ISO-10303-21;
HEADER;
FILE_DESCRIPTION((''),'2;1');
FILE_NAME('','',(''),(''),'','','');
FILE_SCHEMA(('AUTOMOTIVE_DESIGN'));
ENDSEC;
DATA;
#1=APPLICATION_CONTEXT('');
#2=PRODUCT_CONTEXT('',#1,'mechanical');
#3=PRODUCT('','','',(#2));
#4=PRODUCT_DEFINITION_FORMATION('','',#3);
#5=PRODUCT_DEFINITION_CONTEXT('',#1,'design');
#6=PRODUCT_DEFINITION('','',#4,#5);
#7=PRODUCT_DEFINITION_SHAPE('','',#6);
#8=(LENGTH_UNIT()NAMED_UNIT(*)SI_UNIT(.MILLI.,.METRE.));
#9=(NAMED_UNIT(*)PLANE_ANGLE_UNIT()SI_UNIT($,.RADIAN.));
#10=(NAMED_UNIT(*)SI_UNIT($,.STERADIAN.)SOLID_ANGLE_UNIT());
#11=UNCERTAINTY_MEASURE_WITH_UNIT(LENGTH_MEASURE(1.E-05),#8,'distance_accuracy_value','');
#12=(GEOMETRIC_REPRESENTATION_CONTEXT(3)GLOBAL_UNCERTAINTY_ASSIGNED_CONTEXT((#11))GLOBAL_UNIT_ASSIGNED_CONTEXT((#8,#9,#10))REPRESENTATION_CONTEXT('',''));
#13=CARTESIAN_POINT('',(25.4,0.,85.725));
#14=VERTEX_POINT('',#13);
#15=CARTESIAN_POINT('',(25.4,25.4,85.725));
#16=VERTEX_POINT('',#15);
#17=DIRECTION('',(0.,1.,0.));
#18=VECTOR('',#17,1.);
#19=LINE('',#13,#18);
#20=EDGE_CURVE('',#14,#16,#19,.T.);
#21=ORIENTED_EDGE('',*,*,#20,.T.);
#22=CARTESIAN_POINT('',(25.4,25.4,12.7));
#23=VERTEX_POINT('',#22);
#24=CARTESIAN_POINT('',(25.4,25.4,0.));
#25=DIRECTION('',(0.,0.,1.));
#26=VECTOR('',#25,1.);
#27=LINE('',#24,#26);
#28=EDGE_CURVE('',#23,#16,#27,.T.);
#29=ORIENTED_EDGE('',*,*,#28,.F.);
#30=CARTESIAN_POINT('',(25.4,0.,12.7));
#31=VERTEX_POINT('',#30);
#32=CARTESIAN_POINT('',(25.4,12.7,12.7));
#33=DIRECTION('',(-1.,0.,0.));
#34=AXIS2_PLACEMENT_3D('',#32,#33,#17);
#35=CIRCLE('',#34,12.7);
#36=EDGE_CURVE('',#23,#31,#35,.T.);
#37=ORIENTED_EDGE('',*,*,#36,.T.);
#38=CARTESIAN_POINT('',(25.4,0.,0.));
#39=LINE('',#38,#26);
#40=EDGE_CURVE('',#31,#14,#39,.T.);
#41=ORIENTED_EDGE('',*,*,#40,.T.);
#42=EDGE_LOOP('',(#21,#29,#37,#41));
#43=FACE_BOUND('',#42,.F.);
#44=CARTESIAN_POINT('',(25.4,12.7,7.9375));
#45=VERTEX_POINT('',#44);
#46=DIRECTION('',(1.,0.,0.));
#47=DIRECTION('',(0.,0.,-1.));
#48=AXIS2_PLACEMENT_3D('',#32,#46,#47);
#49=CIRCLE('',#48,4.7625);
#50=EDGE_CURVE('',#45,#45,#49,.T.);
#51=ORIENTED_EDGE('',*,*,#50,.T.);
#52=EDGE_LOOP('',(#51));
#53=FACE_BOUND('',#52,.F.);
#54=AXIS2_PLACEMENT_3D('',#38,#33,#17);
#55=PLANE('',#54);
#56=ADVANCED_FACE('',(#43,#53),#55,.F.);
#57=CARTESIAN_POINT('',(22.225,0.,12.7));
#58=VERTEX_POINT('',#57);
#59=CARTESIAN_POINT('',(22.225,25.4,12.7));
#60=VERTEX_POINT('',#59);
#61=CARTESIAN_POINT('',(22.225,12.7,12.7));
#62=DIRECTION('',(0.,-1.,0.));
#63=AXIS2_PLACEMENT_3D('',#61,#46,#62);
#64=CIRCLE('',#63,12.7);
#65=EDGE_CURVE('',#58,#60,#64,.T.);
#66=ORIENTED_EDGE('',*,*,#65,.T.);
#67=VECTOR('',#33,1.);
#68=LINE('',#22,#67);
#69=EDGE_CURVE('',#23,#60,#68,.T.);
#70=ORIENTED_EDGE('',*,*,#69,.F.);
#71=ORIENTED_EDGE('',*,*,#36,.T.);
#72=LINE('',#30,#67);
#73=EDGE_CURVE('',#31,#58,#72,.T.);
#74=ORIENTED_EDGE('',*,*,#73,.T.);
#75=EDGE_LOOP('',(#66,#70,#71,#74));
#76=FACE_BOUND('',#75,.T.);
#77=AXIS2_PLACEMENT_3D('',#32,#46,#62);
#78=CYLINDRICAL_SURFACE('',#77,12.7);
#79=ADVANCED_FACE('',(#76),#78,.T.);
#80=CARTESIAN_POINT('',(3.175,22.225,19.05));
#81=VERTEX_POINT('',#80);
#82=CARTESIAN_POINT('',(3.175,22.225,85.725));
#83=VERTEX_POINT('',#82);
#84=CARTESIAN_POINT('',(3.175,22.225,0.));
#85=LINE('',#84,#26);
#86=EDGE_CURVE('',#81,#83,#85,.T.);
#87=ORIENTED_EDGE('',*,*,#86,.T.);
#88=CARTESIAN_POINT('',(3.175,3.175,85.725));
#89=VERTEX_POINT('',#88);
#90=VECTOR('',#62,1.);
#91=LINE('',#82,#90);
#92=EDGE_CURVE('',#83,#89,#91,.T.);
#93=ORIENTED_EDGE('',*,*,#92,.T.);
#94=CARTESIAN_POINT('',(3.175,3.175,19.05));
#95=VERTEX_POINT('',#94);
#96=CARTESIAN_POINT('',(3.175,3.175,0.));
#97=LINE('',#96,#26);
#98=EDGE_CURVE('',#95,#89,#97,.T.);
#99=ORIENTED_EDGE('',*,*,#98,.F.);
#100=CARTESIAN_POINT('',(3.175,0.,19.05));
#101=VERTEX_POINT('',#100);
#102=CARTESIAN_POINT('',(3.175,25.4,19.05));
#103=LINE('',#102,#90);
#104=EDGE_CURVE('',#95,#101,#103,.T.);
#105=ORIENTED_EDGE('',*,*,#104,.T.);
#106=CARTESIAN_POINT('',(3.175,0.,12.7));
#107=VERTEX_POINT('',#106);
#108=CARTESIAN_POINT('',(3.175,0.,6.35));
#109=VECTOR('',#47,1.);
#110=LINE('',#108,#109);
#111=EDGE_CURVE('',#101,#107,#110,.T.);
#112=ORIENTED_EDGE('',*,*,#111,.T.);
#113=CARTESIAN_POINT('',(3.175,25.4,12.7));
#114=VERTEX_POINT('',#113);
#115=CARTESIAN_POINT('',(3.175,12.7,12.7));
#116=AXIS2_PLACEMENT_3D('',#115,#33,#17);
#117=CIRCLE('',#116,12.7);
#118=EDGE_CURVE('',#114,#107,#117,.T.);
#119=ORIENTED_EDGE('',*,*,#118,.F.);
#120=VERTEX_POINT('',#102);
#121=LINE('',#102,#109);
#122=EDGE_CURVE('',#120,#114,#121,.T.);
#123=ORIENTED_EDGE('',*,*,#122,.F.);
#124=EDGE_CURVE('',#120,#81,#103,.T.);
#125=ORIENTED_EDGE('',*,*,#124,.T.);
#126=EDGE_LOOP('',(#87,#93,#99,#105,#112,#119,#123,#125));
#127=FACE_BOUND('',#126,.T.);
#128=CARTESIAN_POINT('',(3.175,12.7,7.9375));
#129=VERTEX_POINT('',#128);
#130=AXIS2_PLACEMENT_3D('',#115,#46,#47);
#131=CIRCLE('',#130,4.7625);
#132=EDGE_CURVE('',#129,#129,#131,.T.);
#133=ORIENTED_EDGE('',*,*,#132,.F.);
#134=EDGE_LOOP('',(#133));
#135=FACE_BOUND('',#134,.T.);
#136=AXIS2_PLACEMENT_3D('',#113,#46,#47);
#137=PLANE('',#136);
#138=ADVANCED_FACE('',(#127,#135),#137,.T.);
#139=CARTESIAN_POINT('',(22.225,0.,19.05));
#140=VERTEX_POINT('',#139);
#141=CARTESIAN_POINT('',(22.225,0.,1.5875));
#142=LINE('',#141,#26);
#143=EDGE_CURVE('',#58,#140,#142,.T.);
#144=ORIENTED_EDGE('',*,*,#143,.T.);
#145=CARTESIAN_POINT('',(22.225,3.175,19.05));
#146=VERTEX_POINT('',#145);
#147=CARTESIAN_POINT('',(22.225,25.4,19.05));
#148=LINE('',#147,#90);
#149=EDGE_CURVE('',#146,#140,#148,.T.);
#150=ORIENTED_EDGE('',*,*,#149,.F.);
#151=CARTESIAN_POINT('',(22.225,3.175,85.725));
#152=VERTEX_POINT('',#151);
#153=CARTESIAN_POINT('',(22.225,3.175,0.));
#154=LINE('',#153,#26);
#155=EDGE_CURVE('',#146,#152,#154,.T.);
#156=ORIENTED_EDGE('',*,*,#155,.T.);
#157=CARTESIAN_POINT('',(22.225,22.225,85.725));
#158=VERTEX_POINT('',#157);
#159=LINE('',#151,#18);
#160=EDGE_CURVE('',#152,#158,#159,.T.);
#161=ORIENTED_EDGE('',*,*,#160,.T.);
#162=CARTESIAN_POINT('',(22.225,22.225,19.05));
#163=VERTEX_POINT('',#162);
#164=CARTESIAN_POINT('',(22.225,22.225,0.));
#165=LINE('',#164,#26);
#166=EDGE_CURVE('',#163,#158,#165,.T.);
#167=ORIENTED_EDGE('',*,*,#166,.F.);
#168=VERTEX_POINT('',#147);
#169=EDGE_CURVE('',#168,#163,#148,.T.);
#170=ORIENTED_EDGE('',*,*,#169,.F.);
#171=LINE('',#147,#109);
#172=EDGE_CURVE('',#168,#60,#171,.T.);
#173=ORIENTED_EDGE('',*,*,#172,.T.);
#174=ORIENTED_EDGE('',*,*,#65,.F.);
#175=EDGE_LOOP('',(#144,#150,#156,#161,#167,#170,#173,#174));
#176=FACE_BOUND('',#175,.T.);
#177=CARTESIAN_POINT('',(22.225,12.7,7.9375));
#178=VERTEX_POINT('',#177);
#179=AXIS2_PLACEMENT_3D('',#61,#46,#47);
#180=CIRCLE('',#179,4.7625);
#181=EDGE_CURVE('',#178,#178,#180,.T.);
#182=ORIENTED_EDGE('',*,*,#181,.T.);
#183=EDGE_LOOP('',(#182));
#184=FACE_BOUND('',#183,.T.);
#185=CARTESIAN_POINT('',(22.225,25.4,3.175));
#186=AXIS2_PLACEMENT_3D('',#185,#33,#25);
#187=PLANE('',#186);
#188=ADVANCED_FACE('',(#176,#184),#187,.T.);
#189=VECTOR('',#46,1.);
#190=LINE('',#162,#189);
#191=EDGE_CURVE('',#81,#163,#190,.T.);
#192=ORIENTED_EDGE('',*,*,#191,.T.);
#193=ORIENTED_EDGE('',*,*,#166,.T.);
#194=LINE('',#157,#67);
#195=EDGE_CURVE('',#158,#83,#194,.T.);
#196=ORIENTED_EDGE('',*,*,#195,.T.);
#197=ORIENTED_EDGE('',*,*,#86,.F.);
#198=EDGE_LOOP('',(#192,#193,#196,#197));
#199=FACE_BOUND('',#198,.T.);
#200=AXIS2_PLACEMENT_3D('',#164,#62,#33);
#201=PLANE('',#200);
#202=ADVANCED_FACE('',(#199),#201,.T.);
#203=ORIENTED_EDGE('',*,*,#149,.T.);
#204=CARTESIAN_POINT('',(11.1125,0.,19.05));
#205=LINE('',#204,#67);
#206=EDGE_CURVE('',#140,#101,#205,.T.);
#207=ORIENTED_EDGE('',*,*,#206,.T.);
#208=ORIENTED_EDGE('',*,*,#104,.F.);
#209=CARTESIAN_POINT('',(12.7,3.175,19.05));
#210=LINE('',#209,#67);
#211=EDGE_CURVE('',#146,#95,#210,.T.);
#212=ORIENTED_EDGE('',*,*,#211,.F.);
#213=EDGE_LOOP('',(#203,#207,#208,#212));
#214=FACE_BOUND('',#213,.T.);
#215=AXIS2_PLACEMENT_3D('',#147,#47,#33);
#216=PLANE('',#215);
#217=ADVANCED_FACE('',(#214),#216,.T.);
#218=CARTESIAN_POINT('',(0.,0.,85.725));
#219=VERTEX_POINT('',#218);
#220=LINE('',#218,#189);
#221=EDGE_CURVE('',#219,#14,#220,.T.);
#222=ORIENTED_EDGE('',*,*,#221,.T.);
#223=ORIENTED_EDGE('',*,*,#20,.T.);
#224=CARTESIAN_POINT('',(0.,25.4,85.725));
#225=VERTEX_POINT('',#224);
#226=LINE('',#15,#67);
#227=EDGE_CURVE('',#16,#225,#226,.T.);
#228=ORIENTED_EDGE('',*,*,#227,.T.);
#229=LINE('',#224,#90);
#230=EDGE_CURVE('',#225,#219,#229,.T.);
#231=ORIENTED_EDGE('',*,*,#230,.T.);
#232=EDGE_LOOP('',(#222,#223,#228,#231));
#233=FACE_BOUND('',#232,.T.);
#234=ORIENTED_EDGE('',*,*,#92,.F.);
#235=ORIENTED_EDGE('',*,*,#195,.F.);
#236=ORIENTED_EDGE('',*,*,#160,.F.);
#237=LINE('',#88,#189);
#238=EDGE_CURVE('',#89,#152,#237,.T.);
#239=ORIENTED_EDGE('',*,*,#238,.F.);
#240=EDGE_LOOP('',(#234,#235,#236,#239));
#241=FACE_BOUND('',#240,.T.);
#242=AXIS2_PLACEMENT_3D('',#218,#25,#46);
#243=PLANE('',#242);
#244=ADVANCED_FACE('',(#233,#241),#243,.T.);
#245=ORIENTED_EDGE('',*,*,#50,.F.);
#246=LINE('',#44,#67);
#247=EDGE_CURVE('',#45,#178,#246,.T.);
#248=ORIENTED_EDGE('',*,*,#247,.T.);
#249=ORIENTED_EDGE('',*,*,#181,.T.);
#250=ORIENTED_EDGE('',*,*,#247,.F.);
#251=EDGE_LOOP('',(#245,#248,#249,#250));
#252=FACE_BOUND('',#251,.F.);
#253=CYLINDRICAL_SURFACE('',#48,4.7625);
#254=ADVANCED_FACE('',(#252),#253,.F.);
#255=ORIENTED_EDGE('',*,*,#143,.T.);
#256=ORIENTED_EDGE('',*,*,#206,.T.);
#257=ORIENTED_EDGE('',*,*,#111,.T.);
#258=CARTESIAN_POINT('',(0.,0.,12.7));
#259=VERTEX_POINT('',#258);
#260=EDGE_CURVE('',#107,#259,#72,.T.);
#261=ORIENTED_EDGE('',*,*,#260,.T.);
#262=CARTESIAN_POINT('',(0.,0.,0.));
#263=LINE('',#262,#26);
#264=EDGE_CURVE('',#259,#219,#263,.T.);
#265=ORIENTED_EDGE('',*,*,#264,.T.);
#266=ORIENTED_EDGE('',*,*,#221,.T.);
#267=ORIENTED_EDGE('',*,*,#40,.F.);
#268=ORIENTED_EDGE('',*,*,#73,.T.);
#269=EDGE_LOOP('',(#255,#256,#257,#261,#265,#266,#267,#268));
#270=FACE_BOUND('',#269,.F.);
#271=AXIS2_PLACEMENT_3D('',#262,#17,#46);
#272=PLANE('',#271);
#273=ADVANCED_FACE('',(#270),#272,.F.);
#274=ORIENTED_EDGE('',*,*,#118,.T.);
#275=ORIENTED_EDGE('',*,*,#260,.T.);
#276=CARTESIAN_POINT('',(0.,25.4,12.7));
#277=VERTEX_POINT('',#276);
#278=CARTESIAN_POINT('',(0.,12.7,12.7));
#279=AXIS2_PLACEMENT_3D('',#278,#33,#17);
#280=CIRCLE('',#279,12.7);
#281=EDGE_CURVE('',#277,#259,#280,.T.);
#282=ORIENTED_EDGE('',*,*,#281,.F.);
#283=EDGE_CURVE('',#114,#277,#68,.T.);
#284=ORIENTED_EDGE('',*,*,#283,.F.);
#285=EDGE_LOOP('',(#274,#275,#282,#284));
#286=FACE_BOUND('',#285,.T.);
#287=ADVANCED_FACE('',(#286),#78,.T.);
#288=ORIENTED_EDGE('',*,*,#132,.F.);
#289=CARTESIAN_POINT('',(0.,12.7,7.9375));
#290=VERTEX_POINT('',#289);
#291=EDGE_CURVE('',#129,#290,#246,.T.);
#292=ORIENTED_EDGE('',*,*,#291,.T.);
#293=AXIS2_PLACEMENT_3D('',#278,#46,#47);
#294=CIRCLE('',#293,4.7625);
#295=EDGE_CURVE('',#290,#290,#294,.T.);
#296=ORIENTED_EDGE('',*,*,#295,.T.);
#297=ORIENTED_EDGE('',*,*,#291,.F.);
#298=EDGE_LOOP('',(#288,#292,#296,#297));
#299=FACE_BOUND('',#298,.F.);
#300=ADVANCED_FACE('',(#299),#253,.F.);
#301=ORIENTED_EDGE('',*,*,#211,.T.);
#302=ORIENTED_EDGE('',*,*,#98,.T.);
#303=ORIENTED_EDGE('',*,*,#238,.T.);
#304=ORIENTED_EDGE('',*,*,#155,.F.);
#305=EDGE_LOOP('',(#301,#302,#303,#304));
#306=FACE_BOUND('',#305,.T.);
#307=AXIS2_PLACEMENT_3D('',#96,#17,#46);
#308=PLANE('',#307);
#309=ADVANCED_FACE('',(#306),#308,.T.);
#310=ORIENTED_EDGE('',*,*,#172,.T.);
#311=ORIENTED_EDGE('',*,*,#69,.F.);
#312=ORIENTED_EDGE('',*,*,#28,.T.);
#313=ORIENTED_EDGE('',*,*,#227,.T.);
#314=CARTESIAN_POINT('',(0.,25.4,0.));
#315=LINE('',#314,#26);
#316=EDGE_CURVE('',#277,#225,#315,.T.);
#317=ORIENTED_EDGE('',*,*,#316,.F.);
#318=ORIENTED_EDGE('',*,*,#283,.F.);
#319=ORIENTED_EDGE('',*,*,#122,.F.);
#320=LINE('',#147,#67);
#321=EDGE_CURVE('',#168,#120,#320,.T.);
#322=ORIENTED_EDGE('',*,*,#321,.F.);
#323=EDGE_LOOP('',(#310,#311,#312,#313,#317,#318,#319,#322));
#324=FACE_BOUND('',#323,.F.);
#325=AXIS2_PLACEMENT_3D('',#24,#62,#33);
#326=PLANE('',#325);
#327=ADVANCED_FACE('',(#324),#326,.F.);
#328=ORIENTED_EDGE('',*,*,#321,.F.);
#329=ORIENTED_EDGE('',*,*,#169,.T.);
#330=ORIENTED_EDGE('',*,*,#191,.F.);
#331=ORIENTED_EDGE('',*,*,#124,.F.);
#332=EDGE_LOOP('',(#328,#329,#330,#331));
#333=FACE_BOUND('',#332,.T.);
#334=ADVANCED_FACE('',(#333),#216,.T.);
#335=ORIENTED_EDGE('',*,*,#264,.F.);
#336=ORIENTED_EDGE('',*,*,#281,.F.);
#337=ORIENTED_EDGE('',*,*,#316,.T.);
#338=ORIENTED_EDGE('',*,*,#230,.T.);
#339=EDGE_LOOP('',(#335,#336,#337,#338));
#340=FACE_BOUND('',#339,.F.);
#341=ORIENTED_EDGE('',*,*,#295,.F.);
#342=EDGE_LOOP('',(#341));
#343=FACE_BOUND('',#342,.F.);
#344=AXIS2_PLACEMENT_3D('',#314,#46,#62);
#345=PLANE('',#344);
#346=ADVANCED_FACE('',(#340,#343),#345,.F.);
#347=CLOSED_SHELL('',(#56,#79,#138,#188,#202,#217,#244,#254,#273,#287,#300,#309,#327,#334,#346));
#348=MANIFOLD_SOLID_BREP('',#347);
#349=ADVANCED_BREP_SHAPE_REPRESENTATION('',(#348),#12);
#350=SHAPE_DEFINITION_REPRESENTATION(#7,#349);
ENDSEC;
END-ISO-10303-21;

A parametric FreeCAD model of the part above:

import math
import FreeCAD as App
import Part
import Sketcher
Q = App.Units.Quantity


def add_polygon(sketch, points):
    """Adds a closed chain of lines whose ends are joined by coincident constraints."""
    first, n = sketch.GeometryCount, len(points)
    for a, b in zip(points, points[1:] + points[:1]):
        sketch.addGeometry(Part.LineSegment(App.Vector(*a, 0), App.Vector(*b, 0)), False)
    for i in range(n):
        sketch.addConstraint(Sketcher.Constraint("Coincident", first + i, 2, first + (i + 1) % n, 1))

doc = App.newDocument("Part")
body = doc.addObject("PartDesign::Body", "Body")

sketch1 = body.newObject("Sketcher::SketchObject", "Sketch")
sketch1.AttachmentSupport = (doc.getObject("XY_Plane"), [""])
sketch1.MapMode = "FlatFace"
add_polygon(sketch1, [(0, 25.4), (0, 0), (25.4, 0), (25.4, 25.4)])
add_polygon(sketch1, [(22.225, 3.175), (3.175, 3.175), (3.175, 22.225), (22.225, 22.225)])
sketch1.addConstraint([
    Sketcher.Constraint("Vertical", 0),
    Sketcher.Constraint("Horizontal", 1),
    Sketcher.Constraint("Vertical", 2),
    Sketcher.Constraint("Horizontal", 3),
    Sketcher.Constraint("Horizontal", 4),
    Sketcher.Constraint("Vertical", 5),
    Sketcher.Constraint("Horizontal", 6),
    Sketcher.Constraint("Vertical", 7),
    Sketcher.Constraint("Coincident", 0, 2, -1, 1),
    Sketcher.Constraint("Equal", 3, 0),
    Sketcher.Constraint("Equal", 6, 5),
    Sketcher.Constraint("DistanceX", 1, 1, 1, 2, Q("1 in")),
    Sketcher.Constraint("DistanceX", -1, 1, 4, 2, Q("0.125 in")),
    Sketcher.Constraint("DistanceY", -1, 1, 4, 2, Q("0.125 in")),
    Sketcher.Constraint("DistanceY", 5, 2, 3, 2, Q("0.125 in")),
])
pad1 = body.newObject("PartDesign::Pad", "Pad")
pad1.Profile = sketch1
pad1.Length = Q("3.375 in")

sketch2 = body.newObject("Sketcher::SketchObject", "Sketch001")
sketch2.AttachmentSupport = (doc.getObject("YZ_Plane"), [""])
sketch2.MapMode = "FlatFace"
sketch2.AttachmentOffset = App.Placement(App.Vector(0, 0, 1 * 25.4), App.Rotation())
sketch2.addGeometry([
    Part.LineSegment(App.Vector(25.4, 0, 0), App.Vector(25.4, 12.7, 0)),
    Part.ArcOfCircle(Part.Circle(App.Vector(12.7, 12.7, 0), App.Vector(0, 0, 1), 12.7), math.radians(-90), math.radians(0)),
    Part.LineSegment(App.Vector(12.7, 0, 0), App.Vector(25.4, 0, 0)),
    Part.ArcOfCircle(Part.Circle(App.Vector(12.7, 12.7, 0), App.Vector(0, 0, 1), 12.7), math.radians(180), math.radians(270)),
    Part.LineSegment(App.Vector(0, 12.7, 0), App.Vector(0, 0, 0)),
    Part.LineSegment(App.Vector(0, 0, 0), App.Vector(12.7, 0, 0)),
    Part.Circle(App.Vector(12.7, 12.7, 0), App.Vector(0, 0, 1), 4.7625),
], False)
sketch2.addConstraint([
    Sketcher.Constraint("Tangent", 0, 2, 1, 2),
    Sketcher.Constraint("Tangent", 1, 1, 2, 1),
    Sketcher.Constraint("Coincident", 2, 2, 0, 1),
    Sketcher.Constraint("Tangent", 3, 1, 4, 1),
    Sketcher.Constraint("Coincident", 4, 2, 5, 1),
    Sketcher.Constraint("Tangent", 5, 2, 3, 2),
    Sketcher.Constraint("Vertical", 0),
    Sketcher.Constraint("Horizontal", 2),
    Sketcher.Constraint("Vertical", 4),
    Sketcher.Constraint("Horizontal", 5),
    Sketcher.Constraint("Coincident", 4, 2, -1, 1),
    Sketcher.Constraint("Coincident", 3, 3, 1, 3),
    Sketcher.Constraint("Coincident", 6, 3, 1, 3),
    Sketcher.Constraint("Equal", 1, 3),
    Sketcher.Constraint("Radius", 1, Q("0.5 in")),
    Sketcher.Constraint("Diameter", 6, Q("0.375 in")),
])
pocket1 = body.newObject("PartDesign::Pocket", "Pocket")
pocket1.Profile = sketch2
pocket1.Length = Q("1 in")

sketch3 = body.newObject("Sketcher::SketchObject", "Sketch002")
sketch3.AttachmentSupport = (doc.getObject("XZ_Plane"), [""])
sketch3.MapMode = "FlatFace"
sketch3.AttachmentOffset = App.Placement(App.Vector(0, 0, -1 * 25.4), App.Rotation())
add_polygon(sketch3, [(3.175, 3.175), (3.175, 19.05), (22.225, 19.05), (22.225, 3.175)])
sketch3.addConstraint([
    Sketcher.Constraint("Vertical", 0),
    Sketcher.Constraint("Horizontal", 1),
    Sketcher.Constraint("Vertical", 2),
    Sketcher.Constraint("Horizontal", 3),
    Sketcher.Constraint("DistanceX", 1, 1, 1, 2, Q("0.75 in")),
    Sketcher.Constraint("DistanceY", 0, 1, 0, 2, Q("0.625 in")),
    Sketcher.Constraint("DistanceY", -1, 1, 0, 2, Q("0.75 in")),
    Sketcher.Constraint("DistanceX", -1, 1, 0, 2, Q("0.125 in")),
])
pocket2 = body.newObject("PartDesign::Pocket", "Pocket001")
pocket2.Profile = sketch3
pocket2.Type = "ThroughAll"
pocket2.Reversed = True

doc.recompute()
